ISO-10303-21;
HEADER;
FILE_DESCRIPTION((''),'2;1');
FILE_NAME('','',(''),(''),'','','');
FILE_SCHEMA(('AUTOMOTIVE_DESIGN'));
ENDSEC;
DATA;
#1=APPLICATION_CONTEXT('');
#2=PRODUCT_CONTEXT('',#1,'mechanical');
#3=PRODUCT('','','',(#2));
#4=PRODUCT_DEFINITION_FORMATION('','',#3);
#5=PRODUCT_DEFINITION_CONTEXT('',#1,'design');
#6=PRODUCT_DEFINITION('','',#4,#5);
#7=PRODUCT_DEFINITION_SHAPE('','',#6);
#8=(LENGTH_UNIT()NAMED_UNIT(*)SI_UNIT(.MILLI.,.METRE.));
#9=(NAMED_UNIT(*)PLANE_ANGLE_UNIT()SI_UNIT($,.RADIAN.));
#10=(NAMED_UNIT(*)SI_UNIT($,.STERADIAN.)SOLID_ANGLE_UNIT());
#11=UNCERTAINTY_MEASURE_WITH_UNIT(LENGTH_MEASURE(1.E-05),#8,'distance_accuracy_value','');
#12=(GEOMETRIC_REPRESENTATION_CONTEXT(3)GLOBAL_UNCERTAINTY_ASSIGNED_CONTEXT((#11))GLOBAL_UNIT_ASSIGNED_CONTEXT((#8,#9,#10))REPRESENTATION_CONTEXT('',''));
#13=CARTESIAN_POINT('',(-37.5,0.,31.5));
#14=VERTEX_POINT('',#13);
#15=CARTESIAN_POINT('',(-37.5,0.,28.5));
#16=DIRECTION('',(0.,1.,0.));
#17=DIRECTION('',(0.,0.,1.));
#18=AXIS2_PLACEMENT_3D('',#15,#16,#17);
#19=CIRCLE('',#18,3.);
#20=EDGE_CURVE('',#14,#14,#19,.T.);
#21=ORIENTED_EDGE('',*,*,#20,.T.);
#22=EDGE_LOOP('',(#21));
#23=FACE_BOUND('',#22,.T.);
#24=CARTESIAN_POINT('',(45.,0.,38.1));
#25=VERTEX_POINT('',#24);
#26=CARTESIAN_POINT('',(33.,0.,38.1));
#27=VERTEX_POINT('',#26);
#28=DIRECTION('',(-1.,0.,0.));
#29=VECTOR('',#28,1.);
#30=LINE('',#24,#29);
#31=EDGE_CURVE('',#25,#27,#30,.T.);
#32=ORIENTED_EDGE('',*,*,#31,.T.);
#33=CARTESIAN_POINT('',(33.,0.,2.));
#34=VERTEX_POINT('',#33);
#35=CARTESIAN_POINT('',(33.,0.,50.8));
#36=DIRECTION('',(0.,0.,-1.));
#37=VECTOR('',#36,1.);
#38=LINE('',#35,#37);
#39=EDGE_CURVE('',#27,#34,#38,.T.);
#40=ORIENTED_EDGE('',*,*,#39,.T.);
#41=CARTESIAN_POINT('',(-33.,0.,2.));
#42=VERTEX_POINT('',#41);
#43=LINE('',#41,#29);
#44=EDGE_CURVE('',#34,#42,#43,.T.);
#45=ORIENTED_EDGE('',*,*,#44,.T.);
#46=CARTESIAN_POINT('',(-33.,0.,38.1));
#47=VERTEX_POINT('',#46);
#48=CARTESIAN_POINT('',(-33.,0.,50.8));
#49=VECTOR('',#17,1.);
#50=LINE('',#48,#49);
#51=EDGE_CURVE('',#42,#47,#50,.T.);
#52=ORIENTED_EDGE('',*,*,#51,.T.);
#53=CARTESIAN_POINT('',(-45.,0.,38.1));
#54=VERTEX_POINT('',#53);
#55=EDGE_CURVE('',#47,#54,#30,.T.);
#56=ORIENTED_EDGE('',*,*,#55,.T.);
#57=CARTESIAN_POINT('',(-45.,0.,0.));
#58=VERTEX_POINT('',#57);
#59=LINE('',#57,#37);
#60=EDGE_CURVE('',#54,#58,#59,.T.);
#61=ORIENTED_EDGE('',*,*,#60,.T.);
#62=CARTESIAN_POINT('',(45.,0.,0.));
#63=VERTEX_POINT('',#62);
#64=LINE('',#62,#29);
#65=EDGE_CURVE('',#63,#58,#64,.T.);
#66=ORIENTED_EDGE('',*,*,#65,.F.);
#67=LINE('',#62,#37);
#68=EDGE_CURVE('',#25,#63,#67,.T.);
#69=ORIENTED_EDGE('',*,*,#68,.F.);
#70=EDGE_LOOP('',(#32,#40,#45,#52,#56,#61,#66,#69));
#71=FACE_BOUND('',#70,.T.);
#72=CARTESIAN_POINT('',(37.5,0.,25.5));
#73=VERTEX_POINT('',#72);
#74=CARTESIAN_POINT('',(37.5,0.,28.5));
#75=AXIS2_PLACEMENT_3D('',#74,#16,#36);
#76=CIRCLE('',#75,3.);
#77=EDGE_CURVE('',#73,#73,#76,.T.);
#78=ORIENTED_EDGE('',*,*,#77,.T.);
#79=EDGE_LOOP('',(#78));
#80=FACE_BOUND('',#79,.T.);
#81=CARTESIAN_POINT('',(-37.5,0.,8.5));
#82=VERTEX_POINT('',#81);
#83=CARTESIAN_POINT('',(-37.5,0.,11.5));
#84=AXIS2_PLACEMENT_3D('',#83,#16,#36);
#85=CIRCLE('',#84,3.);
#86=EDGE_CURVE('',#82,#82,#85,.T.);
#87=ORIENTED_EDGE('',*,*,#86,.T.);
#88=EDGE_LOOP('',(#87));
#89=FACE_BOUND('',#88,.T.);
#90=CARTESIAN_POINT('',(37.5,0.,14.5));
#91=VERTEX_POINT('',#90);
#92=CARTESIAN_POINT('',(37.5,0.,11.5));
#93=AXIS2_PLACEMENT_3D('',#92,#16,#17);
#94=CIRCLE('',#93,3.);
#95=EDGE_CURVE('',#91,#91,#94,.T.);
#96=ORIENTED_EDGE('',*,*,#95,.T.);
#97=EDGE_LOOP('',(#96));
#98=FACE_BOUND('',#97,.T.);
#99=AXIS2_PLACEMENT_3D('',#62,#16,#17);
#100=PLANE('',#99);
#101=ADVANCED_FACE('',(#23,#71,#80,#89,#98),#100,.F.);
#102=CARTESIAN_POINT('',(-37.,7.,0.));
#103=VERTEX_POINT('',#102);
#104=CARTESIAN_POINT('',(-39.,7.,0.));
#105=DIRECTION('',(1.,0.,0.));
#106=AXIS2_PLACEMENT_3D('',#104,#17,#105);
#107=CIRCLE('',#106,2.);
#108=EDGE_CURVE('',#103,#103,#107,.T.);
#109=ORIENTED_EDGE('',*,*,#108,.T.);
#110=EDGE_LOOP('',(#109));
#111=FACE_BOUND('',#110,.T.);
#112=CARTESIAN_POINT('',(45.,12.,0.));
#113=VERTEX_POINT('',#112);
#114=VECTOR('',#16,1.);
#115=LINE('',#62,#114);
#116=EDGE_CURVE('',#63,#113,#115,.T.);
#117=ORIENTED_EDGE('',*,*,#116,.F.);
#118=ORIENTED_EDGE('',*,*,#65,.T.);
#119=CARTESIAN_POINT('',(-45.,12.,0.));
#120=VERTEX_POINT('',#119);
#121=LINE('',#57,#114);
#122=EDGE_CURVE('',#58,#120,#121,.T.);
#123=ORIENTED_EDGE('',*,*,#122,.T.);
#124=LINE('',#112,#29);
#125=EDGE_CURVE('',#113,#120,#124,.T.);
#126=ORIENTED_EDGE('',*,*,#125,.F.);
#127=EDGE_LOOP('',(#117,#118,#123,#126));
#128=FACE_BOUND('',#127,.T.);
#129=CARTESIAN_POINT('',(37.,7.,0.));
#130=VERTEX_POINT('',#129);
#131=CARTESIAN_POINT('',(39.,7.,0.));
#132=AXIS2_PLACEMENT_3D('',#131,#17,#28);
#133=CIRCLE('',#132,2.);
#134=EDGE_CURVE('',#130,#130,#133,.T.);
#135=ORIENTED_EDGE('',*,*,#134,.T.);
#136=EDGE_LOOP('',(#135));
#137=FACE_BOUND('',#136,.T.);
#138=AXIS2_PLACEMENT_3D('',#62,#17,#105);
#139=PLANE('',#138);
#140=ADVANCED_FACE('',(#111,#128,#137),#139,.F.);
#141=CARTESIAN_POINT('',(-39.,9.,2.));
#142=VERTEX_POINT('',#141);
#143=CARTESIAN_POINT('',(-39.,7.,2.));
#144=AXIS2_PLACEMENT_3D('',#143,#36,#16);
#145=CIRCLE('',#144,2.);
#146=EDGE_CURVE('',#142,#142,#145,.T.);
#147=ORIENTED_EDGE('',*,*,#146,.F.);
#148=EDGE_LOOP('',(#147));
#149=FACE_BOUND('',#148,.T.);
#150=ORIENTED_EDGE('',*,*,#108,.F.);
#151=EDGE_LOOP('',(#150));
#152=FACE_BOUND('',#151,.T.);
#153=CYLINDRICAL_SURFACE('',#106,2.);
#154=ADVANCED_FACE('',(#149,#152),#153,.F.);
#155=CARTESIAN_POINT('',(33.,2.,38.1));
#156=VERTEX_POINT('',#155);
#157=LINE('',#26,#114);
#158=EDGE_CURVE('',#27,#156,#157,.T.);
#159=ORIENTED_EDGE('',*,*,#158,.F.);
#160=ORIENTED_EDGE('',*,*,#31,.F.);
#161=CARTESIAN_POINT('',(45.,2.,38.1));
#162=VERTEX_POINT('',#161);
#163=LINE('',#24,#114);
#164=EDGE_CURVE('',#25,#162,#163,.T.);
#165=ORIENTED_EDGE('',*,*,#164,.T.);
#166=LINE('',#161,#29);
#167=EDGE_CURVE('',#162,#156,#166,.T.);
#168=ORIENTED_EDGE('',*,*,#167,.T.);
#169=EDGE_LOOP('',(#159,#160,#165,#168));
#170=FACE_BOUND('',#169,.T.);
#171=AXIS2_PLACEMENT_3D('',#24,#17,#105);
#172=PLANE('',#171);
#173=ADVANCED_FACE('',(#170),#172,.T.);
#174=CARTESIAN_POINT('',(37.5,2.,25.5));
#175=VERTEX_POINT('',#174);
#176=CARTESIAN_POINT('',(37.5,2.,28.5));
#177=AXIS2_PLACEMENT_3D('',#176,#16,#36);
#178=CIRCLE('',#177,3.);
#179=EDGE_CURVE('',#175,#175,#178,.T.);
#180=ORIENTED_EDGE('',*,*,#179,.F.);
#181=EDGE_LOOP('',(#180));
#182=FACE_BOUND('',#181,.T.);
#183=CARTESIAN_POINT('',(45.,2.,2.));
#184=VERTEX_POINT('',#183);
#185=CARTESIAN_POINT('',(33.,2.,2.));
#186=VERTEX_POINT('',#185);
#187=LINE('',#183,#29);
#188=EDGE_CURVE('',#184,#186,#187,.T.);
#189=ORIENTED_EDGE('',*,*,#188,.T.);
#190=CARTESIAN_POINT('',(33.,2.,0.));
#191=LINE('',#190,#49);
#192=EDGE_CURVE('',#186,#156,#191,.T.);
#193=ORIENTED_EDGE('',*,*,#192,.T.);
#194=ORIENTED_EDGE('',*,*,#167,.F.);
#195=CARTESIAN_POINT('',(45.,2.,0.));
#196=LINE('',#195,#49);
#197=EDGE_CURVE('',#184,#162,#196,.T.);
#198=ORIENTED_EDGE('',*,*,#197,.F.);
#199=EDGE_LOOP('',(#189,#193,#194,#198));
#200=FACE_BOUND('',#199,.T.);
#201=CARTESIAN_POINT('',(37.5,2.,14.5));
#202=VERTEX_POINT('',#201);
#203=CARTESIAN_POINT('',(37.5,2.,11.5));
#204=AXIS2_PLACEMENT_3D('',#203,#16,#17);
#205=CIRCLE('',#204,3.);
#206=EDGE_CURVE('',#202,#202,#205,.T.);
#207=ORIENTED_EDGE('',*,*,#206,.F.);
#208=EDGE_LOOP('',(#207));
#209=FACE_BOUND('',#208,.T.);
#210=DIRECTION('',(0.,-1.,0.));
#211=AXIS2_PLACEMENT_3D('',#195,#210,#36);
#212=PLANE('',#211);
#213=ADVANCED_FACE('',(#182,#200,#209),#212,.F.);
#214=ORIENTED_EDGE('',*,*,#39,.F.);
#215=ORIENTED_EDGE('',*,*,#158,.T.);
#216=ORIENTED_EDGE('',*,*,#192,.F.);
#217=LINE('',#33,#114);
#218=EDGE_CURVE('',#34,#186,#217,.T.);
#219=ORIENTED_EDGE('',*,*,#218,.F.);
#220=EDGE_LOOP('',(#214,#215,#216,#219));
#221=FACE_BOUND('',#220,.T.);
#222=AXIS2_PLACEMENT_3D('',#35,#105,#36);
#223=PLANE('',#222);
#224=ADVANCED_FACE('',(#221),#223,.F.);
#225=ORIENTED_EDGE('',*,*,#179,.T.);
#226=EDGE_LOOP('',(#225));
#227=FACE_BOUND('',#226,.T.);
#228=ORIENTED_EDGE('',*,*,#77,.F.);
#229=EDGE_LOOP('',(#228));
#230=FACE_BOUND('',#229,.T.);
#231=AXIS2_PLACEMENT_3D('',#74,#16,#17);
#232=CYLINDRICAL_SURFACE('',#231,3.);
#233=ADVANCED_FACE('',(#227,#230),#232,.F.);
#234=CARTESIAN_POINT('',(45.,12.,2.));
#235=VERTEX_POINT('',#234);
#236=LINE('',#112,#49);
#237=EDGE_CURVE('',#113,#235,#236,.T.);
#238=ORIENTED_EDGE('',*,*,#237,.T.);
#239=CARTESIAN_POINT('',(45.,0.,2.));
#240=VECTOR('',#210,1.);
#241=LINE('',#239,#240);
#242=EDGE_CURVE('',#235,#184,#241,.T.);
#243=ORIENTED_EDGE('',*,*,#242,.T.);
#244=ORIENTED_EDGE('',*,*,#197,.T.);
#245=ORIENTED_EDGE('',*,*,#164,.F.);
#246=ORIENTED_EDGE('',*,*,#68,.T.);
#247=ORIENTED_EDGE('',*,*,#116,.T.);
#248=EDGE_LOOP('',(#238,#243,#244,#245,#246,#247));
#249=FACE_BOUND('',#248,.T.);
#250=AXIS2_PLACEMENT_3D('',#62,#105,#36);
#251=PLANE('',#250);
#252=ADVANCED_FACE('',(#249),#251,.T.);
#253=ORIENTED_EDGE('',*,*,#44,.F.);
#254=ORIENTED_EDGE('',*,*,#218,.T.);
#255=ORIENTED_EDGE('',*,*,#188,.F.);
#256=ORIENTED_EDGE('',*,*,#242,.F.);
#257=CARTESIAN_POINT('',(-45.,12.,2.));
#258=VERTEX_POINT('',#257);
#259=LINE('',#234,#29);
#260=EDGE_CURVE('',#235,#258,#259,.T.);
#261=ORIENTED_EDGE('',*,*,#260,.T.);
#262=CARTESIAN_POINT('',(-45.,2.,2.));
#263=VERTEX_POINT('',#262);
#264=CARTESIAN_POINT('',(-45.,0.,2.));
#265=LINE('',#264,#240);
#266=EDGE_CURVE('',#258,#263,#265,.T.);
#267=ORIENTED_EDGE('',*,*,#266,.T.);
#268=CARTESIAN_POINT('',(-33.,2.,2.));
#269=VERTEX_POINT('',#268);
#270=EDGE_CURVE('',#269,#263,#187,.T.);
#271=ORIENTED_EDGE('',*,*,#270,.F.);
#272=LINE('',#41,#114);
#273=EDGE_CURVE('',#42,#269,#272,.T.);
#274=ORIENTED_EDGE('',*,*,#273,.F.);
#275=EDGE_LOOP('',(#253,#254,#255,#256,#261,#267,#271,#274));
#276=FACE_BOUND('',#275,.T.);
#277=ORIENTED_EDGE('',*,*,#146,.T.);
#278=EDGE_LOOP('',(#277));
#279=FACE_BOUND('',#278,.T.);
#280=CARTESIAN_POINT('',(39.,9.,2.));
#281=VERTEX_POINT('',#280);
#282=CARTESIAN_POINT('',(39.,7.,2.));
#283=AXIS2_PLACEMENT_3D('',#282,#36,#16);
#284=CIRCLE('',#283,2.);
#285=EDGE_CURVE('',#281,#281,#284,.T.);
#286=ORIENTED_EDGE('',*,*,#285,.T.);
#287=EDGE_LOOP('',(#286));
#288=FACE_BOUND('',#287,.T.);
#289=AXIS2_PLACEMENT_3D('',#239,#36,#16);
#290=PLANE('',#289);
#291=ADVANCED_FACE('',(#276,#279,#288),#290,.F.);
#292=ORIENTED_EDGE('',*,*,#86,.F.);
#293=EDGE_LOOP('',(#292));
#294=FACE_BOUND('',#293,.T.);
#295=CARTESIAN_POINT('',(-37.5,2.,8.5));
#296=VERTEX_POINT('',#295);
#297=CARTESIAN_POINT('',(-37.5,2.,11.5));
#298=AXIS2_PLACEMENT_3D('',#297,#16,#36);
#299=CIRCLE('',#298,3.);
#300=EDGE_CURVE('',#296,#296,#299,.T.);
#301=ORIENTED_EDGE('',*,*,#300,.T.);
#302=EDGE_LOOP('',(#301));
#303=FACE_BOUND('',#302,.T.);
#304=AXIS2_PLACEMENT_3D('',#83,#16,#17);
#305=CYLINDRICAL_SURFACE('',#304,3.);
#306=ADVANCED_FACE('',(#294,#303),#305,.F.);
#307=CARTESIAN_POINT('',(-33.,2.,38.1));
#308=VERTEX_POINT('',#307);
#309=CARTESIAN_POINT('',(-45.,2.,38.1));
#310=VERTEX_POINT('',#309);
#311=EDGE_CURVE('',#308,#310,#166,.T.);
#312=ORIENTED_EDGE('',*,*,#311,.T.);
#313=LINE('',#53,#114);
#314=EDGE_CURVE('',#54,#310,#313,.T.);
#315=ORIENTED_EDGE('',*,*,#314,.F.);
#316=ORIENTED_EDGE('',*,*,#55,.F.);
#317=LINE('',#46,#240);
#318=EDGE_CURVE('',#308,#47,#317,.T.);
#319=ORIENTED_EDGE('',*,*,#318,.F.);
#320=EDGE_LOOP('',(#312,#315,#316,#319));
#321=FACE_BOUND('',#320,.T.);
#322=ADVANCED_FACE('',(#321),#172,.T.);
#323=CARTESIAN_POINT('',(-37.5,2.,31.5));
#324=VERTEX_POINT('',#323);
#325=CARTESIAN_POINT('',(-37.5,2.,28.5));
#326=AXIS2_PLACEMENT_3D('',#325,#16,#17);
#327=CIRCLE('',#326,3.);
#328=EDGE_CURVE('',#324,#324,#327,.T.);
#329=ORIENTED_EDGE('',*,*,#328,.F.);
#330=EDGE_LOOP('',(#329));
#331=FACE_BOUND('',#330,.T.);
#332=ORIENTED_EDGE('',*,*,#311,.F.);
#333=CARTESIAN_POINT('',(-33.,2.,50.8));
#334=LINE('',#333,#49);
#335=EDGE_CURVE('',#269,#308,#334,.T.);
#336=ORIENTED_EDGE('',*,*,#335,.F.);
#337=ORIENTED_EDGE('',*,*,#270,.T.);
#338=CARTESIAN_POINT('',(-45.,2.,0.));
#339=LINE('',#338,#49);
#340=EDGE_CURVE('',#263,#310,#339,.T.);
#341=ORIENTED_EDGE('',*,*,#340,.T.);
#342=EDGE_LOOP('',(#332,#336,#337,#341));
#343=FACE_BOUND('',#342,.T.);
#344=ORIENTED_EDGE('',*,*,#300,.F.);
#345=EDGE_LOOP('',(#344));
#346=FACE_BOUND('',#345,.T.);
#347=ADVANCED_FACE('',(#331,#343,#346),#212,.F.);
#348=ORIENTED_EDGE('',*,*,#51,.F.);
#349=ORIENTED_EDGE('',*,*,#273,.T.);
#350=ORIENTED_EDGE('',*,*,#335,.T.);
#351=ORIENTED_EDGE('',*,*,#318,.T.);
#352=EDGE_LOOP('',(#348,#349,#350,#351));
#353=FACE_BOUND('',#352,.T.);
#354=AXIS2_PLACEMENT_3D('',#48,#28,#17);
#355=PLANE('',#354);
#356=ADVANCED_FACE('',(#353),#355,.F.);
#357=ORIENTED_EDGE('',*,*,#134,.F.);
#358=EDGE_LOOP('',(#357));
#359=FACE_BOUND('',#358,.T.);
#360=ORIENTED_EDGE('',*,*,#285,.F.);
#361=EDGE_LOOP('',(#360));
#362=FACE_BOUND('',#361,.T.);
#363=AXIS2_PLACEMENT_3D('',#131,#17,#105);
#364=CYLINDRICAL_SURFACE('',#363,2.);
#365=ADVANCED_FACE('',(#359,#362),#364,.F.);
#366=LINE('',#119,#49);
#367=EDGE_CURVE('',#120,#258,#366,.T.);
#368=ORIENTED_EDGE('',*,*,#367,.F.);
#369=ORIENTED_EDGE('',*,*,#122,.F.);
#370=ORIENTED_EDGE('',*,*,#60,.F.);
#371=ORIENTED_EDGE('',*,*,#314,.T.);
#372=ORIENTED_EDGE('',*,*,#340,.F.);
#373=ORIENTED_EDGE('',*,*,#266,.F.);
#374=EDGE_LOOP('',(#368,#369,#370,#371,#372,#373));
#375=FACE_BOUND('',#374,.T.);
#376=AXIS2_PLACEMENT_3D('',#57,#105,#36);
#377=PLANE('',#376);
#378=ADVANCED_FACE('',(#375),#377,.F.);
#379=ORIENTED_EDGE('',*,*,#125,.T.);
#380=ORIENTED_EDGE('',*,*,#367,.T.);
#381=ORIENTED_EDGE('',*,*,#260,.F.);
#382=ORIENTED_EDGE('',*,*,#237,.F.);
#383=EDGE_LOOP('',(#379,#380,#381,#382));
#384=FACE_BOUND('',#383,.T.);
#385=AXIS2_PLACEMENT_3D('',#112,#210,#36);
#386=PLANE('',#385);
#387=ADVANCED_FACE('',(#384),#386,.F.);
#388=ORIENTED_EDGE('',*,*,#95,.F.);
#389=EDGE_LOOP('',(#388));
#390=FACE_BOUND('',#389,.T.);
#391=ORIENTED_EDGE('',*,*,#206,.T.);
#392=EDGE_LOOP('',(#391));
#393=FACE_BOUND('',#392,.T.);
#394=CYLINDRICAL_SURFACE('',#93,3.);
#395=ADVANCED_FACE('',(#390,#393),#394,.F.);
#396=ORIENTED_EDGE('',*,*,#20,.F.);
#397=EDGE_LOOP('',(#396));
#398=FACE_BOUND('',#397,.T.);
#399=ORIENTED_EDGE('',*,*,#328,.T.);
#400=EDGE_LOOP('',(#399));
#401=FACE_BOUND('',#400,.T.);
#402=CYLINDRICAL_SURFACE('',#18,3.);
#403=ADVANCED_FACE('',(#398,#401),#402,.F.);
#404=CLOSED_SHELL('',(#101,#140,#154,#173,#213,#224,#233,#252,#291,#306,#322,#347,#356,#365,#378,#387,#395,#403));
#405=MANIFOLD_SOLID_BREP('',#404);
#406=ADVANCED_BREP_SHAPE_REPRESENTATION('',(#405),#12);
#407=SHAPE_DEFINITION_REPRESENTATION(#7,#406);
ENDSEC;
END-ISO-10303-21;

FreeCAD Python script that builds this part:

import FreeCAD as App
import Part
import Sketcher

doc = App.newDocument("Part")
body = doc.addObject("PartDesign::Body", "Body")

# Sketch on YZ plane
sketch1 = body.newObject("Sketcher::SketchObject", "Sketch")
sketch1.AttachmentSupport = (doc.getObject("YZ_Plane"), [""])
sketch1.MapMode = "FlatFace"
sketch1.addGeometry(Part.LineSegment(App.Vector(0, 38.1, 0), App.Vector(0, 0, 0)), False)
sketch1.addGeometry(Part.LineSegment(App.Vector(0, 0, 0), App.Vector(12, 0, 0)), False)
sketch1.addGeometry(Part.LineSegment(App.Vector(12, 0, 0), App.Vector(12, 2, 0)), False)
sketch1.addGeometry(Part.LineSegment(App.Vector(12, 2, 0), App.Vector(2, 2, 0)), False)
sketch1.addGeometry(Part.LineSegment(App.Vector(2, 2, 0), App.Vector(2, 38.1, 0)), False)
sketch1.addGeometry(Part.LineSegment(App.Vector(2, 38.1, 0), App.Vector(0, 38.1, 0)), False)
sketch1.addConstraint(Sketcher.Constraint("Coincident", 0, 2, 1, 1))
sketch1.addConstraint(Sketcher.Constraint("Coincident", 1, 2, 2, 1))
sketch1.addConstraint(Sketcher.Constraint("Coincident", 2, 2, 3, 1))
sketch1.addConstraint(Sketcher.Constraint("Coincident", 3, 2, 4, 1))
sketch1.addConstraint(Sketcher.Constraint("Coincident", 4, 2, 5, 1))
sketch1.addConstraint(Sketcher.Constraint("Coincident", 5, 2, 0, 1))
sketch1.addConstraint(Sketcher.Constraint("Vertical", 0))
sketch1.addConstraint(Sketcher.Constraint("Horizontal", 1))
sketch1.addConstraint(Sketcher.Constraint("Vertical", 2))
sketch1.addConstraint(Sketcher.Constraint("Horizontal", 3))
sketch1.addConstraint(Sketcher.Constraint("Vertical", 4))
sketch1.addConstraint(Sketcher.Constraint("Horizontal", 5))
sketch1.addConstraint(Sketcher.Constraint("Coincident", 0, 2, -1, 1))
sketch1.addConstraint(Sketcher.Constraint("Equal", 5, 2))
sketch1.addConstraint(Sketcher.Constraint("DistanceX", 1, 1, 1, 2, 12.0))
sketch1.addConstraint(Sketcher.Constraint("DistanceX", 3, 2, 3, 1, 10.0))
sketch1.addConstraint(Sketcher.Constraint("DistanceY", 0, 2, 0, 1, 38.1))
pad1 = body.newObject("PartDesign::Pad", "Pad")
pad1.Profile = sketch1
pad1.Length = 90
pad1.Midplane = True

# Sketch on XZ plane
sketch2 = body.newObject("Sketcher::SketchObject", "Sketch001")
sketch2.AttachmentSupport = (doc.getObject("XZ_Plane"), [""])
sketch2.MapMode = "FlatFace"
sketch2.AttachmentOffset = App.Placement(App.Vector(0, 0, -2), App.Rotation())
sketch2.addGeometry(Part.Circle(App.Vector(37.5, 11.5, 0), App.Vector(0, 0, 1), 3), False)
sketch2.addGeometry(Part.Circle(App.Vector(37.5, 28.5, 0), App.Vector(0, 0, 1), 3), False)
sketch2.addGeometry(Part.Circle(App.Vector(-37.5, 11.5, 0), App.Vector(0, 0, 1), 3), False)
sketch2.addGeometry(Part.Circle(App.Vector(-37.5, 28.5, 0), App.Vector(0, 0, 1), 3), False)
sketch2.addGeometry(Part.LineSegment(App.Vector(-33, 2, 0), App.Vector(-33, 50.8, 0)), False)
sketch2.addGeometry(Part.LineSegment(App.Vector(-33, 50.8, 0), App.Vector(33, 50.8, 0)), False)
sketch2.addGeometry(Part.LineSegment(App.Vector(33, 50.8, 0), App.Vector(33, 2, 0)), False)
sketch2.addGeometry(Part.LineSegment(App.Vector(33, 2, 0), App.Vector(-33, 2, 0)), False)
sketch2.addConstraint(Sketcher.Constraint("Coincident", 4, 2, 5, 1))
sketch2.addConstraint(Sketcher.Constraint("Coincident", 5, 2, 6, 1))
sketch2.addConstraint(Sketcher.Constraint("Coincident", 6, 2, 7, 1))
sketch2.addConstraint(Sketcher.Constraint("Coincident", 7, 2, 4, 1))
sketch2.addConstraint(Sketcher.Constraint("Vertical", 4))
sketch2.addConstraint(Sketcher.Constraint("Horizontal", 5))
sketch2.addConstraint(Sketcher.Constraint("Vertical", 6))
sketch2.addConstraint(Sketcher.Constraint("Horizontal", 7))
sketch2.addConstraint(Sketcher.Constraint("Equal", 0, 1))
sketch2.addConstraint(Sketcher.Constraint("Equal", 1, 2))
sketch2.addConstraint(Sketcher.Constraint("Equal", 2, 3))
sketch2.addConstraint(Sketcher.Constraint("Symmetric", 0, 3, 2, 3, -2))
sketch2.addConstraint(Sketcher.Constraint("Symmetric", 1, 3, 3, 3, -2))
sketch2.addConstraint(Sketcher.Constraint("Vertical", 0, 3, 1, 3))
sketch2.addConstraint(Sketcher.Constraint("Diameter", 0, 6.0))
sketch2.addConstraint(Sketcher.Constraint("DistanceX", 5, 1, 5, 2, 66.0))
sketch2.addConstraint(Sketcher.Constraint("DistanceY", 4, 1, 4, 2, 48.8))
sketch2.addConstraint(Sketcher.Constraint("DistanceX", 4, 2, -1, 1, 33.0))
sketch2.addConstraint(Sketcher.Constraint("DistanceY", -1, 1, 6, 2, 2.0))
sketch2.addConstraint(Sketcher.Constraint("DistanceY", 0, 3, 1, 3, 17.0))
sketch2.addConstraint(Sketcher.Constraint("DistanceX", 2, 3, 0, 3, 75.0))
sketch2.addConstraint(Sketcher.Constraint("DistanceY", -1, 1, 0, 3, 11.5))
pocket1 = body.newObject("PartDesign::Pocket", "Pocket")
pocket1.Profile = sketch2
pocket1.Type = "ThroughAll"
pocket1.Reversed = True

# Sketch on XY plane
sketch3 = body.newObject("Sketcher::SketchObject", "Sketch002")
sketch3.AttachmentSupport = (doc.getObject("XY_Plane"), [""])
sketch3.MapMode = "FlatFace"
sketch3.AttachmentOffset = App.Placement(App.Vector(0, 0, 2), App.Rotation())
sketch3.addGeometry(Part.Circle(App.Vector(-39, 7, 0), App.Vector(0, 0, 1), 2), False)
sketch3.addGeometry(Part.Circle(App.Vector(39, 7, 0), App.Vector(0, 0, 1), 2), False)
sketch3.addConstraint(Sketcher.Constraint("Equal", 0, 1))
sketch3.addConstraint(Sketcher.Constraint("Symmetric", 0, 3, 1, 3, -2))
sketch3.addConstraint(Sketcher.Constraint("Diameter", 0, 4.0))
sketch3.addConstraint(Sketcher.Constraint("DistanceX", 0, 3, -1, 1, 39.0))
sketch3.addConstraint(Sketcher.Constraint("DistanceY", -1, 1, 0, 3, 7.0))
pocket2 = body.newObject("PartDesign::Pocket", "Pocket001")
pocket2.Profile = sketch3
pocket2.Type = "ThroughAll"
pocket2.Midplane = True

doc.recompute()
